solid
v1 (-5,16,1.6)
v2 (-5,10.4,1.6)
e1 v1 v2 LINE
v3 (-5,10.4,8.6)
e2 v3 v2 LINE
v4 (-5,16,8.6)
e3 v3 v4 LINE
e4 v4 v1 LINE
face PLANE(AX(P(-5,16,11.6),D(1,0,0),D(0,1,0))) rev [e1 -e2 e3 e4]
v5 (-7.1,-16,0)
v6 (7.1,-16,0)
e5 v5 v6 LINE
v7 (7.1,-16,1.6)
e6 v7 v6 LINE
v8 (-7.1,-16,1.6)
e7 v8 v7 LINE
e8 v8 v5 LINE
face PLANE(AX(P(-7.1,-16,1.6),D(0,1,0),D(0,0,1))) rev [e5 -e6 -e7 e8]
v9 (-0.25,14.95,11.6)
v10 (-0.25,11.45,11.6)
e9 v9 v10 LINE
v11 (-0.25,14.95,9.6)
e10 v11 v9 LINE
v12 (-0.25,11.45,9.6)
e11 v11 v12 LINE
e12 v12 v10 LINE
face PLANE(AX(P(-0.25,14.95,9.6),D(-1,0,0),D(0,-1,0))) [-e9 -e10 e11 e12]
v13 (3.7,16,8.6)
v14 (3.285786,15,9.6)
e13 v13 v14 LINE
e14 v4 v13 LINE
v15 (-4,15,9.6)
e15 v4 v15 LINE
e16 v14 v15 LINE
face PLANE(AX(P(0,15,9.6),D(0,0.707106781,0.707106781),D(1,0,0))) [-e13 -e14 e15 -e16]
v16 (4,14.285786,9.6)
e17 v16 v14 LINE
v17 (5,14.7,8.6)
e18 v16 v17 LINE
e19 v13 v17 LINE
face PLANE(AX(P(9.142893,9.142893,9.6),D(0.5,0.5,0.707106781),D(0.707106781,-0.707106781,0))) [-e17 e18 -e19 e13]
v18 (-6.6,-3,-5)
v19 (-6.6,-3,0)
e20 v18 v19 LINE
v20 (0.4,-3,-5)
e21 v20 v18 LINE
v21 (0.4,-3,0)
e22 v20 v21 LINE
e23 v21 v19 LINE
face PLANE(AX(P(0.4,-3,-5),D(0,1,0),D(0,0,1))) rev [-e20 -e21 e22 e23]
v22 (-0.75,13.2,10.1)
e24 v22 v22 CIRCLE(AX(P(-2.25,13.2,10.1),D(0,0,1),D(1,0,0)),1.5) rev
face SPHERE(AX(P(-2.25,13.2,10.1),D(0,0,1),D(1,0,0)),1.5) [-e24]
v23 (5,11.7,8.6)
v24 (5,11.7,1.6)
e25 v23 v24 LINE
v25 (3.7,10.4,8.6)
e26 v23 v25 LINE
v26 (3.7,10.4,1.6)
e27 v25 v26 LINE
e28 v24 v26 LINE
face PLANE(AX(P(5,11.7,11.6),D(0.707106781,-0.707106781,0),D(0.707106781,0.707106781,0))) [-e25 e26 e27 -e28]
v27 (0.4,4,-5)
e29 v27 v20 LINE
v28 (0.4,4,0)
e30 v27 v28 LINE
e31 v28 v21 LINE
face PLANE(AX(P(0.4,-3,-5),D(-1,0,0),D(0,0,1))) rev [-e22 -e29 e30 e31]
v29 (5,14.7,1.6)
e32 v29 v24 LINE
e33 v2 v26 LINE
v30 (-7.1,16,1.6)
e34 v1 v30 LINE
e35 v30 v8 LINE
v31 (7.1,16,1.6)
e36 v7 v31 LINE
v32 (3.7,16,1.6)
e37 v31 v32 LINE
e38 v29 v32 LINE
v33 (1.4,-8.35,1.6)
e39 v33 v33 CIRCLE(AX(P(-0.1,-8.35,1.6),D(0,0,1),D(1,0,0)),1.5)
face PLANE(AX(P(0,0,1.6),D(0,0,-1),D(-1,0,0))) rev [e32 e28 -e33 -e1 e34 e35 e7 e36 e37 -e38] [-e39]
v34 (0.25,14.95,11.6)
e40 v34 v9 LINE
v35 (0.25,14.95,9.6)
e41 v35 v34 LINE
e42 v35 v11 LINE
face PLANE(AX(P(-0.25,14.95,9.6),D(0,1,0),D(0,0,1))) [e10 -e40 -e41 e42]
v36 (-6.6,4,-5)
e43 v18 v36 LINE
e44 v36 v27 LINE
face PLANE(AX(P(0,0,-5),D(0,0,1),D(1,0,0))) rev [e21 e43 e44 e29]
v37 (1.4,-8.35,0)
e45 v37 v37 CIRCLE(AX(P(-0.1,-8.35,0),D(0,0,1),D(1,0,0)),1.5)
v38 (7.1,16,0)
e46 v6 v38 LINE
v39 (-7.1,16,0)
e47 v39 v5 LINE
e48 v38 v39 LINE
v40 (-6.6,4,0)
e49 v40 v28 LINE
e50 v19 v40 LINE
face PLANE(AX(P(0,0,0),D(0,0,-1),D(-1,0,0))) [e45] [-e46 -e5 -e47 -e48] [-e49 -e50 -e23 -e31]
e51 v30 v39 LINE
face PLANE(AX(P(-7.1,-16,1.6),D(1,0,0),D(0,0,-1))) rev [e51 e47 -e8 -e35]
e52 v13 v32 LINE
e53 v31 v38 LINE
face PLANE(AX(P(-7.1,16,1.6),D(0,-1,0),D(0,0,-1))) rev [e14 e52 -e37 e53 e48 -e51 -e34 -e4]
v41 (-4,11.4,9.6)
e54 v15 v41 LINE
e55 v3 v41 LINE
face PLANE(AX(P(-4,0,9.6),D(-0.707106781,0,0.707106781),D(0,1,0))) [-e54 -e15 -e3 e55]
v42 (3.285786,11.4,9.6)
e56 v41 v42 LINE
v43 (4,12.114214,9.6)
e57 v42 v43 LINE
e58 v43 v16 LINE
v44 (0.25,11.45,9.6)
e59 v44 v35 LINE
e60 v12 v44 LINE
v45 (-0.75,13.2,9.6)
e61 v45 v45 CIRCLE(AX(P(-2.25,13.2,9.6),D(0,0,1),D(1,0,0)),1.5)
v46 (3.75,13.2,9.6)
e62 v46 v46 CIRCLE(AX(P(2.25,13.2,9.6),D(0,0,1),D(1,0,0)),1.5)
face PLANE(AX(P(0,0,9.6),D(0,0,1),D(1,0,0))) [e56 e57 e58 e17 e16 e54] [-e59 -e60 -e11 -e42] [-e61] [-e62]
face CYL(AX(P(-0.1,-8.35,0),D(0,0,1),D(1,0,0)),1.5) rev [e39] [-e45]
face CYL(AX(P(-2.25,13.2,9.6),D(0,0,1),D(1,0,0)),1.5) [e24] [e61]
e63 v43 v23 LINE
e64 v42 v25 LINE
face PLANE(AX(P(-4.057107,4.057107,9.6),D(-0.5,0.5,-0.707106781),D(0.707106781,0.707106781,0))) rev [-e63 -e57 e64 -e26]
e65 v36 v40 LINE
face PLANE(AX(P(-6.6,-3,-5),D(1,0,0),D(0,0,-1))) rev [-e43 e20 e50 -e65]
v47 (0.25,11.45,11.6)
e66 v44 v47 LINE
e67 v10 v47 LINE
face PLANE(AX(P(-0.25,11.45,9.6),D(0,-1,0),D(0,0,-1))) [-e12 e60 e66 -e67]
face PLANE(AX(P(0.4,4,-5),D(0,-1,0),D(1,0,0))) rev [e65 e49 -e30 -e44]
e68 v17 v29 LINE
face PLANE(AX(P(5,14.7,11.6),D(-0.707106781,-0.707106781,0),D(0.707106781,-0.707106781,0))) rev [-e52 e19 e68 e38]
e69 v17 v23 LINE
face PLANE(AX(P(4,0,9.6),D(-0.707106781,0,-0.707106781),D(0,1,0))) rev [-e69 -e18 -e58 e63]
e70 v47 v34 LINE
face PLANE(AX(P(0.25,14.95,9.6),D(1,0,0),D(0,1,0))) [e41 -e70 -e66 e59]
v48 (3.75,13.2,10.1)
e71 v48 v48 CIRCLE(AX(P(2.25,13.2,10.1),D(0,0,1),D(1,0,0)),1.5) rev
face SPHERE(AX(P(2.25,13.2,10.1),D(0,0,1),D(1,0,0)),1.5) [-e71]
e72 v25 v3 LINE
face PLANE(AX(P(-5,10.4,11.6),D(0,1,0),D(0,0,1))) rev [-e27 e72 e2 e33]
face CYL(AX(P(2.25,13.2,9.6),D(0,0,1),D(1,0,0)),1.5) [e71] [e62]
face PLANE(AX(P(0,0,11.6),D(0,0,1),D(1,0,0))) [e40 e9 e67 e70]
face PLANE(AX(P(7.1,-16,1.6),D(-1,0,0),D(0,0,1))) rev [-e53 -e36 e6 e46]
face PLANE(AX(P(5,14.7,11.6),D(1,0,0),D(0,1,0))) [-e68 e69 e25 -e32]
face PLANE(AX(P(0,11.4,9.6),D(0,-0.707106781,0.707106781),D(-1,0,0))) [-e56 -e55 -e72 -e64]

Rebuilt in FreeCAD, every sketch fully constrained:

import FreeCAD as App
import Part
import Sketcher
Q = App.Units.Quantity


def edges_at(feature, points):
    """Names of the edges that pass closest to the given points."""
    edges = feature.Shape.Edges
    near = lambda p: min(range(len(edges)), key=lambda i: edges[i].distToShape(Part.Vertex(*p))[0])
    return sorted({f"Edge{near(p) + 1}" for p in points})

doc = App.newDocument("Part")
body = doc.addObject("PartDesign::Body", "Body")

# Sketch on XY plane
sketch1 = body.newObject("Sketcher::SketchObject", "Sketch")
sketch1.AttachmentSupport = (doc.getObject("XY_Plane"), [""])
sketch1.MapMode = "FlatFace"
sketch1.addGeometry([
    Part.LineSegment(App.Vector(-7, 16, 0), App.Vector(-7, -16, 0)),
    Part.LineSegment(App.Vector(-7, -16, 0), App.Vector(7, -16, 0)),
    Part.LineSegment(App.Vector(7, -16, 0), App.Vector(7, 16, 0)),
    Part.LineSegment(App.Vector(7, 16, 0), App.Vector(-7, 16, 0)),
], False)
sketch1.addConstraint([
    Sketcher.Constraint("Coincident", 0, 2, 1, 1),
    Sketcher.Constraint("Coincident", 1, 2, 2, 1),
    Sketcher.Constraint("Coincident", 2, 2, 3, 1),
    Sketcher.Constraint("Coincident", 3, 2, 0, 1),
    Sketcher.Constraint("Vertical", 0),
    Sketcher.Constraint("Horizontal", 1),
    Sketcher.Constraint("Vertical", 2),
    Sketcher.Constraint("Horizontal", 3),
    Sketcher.Constraint("Symmetric", 0, 2, 2, 2, -1, 1),
    Sketcher.Constraint("DistanceY", 0, 2, 0, 1, Q("32 mm")),
    Sketcher.Constraint("DistanceX", 1, 1, 1, 2, Q("14.2 mm")),
])
pad1 = body.newObject("PartDesign::Pad", "Pad")
pad1.Profile = sketch1
pad1.Length = 1.6

# Sketch on XY plane
sketch2 = body.newObject("Sketcher::SketchObject", "Sketch001")
sketch2.AttachmentSupport = (doc.getObject("XY_Plane"), [""])
sketch2.MapMode = "FlatFace"
sketch2.AttachmentOffset = App.Placement(App.Vector(0, 0, 1.6), App.Rotation())
sketch2.addGeometry(Part.Circle(App.Vector(-0.1, -8.3, 0), App.Vector(0, 0, 1), 1.5), False)
sketch2.addConstraint([
    Sketcher.Constraint("Diameter", 0, Q("3 mm")),
    Sketcher.Constraint("DistanceX", 0, 3, -1, 1, Q("0.1 mm")),
    Sketcher.Constraint("DistanceY", 0, 3, -1, 1, Q("8.35 mm")),
])
pocket1 = body.newObject("PartDesign::Pocket", "Pocket")
pocket1.Profile = sketch2
pocket1.Type = "ThroughAll"

# Sketch on XY plane
sketch3 = body.newObject("Sketcher::SketchObject", "Sketch002")
sketch3.AttachmentSupport = (doc.getObject("XY_Plane"), [""])
sketch3.MapMode = "FlatFace"
sketch3.AttachmentOffset = App.Placement(App.Vector(0, 0, 1.6), App.Rotation())
sketch3.addGeometry([
    Part.LineSegment(App.Vector(3.7, 16, 0), App.Vector(-5, 16, 0)),  # 0
    Part.LineSegment(App.Vector(-5, 16, 0), App.Vector(-5, 10.4, 0)),  # 1
    Part.LineSegment(App.Vector(-5, 10.4, 0), App.Vector(3.7, 10.4, 0)),  # 2
    Part.LineSegment(App.Vector(3.7, 10.4, 0), App.Vector(5, 11.7, 0)),  # 3
    Part.LineSegment(App.Vector(5, 11.7, 0), App.Vector(5, 14.7, 0)),  # 4
    Part.LineSegment(App.Vector(5, 14.7, 0), App.Vector(3.7, 16, 0)),  # 5
], False)
sketch3.addConstraint([
    Sketcher.Constraint("Coincident", 0, 2, 1, 1),
    Sketcher.Constraint("Coincident", 1, 2, 2, 1),
    Sketcher.Constraint("Coincident", 2, 2, 3, 1),
    Sketcher.Constraint("Coincident", 3, 2, 4, 1),
    Sketcher.Constraint("Coincident", 4, 2, 5, 1),
    Sketcher.Constraint("Coincident", 5, 2, 0, 1),
    Sketcher.Constraint("Horizontal", 0),
    Sketcher.Constraint("Vertical", 1),
    Sketcher.Constraint("Horizontal", 2),
    Sketcher.Constraint("Vertical", 4),
    Sketcher.Constraint("Perpendicular", 3, 5),
    Sketcher.Constraint("Vertical", 2, 2, 5, 2),
    Sketcher.Constraint("Equal", 3, 5),
    Sketcher.Constraint("DistanceY", 4, 1, 4, 2, Q("3 mm")),
    Sketcher.Constraint("DistanceX", 0, 2, 0, 1, Q("8.7 mm")),
    Sketcher.Constraint("DistanceY", 1, 2, 1, 1, Q("5.6 mm")),
    Sketcher.Constraint("DistanceX", 0, 2, -1, 1, Q("5 mm")),
    Sketcher.Constraint("DistanceY", -1, 1, 0, 2, Q("16 mm")),
])
pad2 = body.newObject("PartDesign::Pad", "Pad001")
pad2.Profile = sketch3
pad2.Length = 10

# Sketch on XY plane
sketch4 = body.newObject("Sketcher::SketchObject", "Sketch003")
sketch4.AttachmentSupport = (doc.getObject("XY_Plane"), [""])
sketch4.MapMode = "FlatFace"
sketch4.AttachmentOffset = App.Placement(App.Vector(0, 0, 11.6), App.Rotation())
sketch4.addGeometry([
    Part.LineSegment(App.Vector(-5, 10.4, 0), App.Vector(3.7, 10.4, 0)),  # 0
    Part.LineSegment(App.Vector(3.7, 10.4, 0), App.Vector(5, 11.7, 0)),  # 1
    Part.LineSegment(App.Vector(5, 11.7, 0), App.Vector(5, 14.7, 0)),  # 2
    Part.LineSegment(App.Vector(5, 14.7, 0), App.Vector(3.7, 16, 0)),  # 3
    Part.LineSegment(App.Vector(3.7, 16, 0), App.Vector(-5, 16, 0)),  # 4
    Part.LineSegment(App.Vector(-5, 16, 0), App.Vector(-5, 10.4, 0)),  # 5
    Part.Circle(App.Vector(-2.2, 13.2, 0), App.Vector(0, 0, 1), 1.5),  # 6
    Part.LineSegment(App.Vector(0.2, 11.4, 0), App.Vector(-0.2, 11.4, 0)),  # 7
    Part.LineSegment(App.Vector(-0.2, 11.4, 0), App.Vector(-0.2, 14.9, 0)),  # 8
    Part.LineSegment(App.Vector(-0.2, 14.9, 0), App.Vector(0.2, 14.9, 0)),  # 9
    Part.LineSegment(App.Vector(0.2, 14.9, 0), App.Vector(0.2, 11.4, 0)),  # 10
    Part.Circle(App.Vector(2.2, 13.2, 0), App.Vector(0, 0, 1), 1.5),  # 11
], False)
sketch4.addConstraint([
    Sketcher.Constraint("Coincident", 0, 2, 1, 1),
    Sketcher.Constraint("Coincident", 1, 2, 2, 1),
    Sketcher.Constraint("Coincident", 2, 2, 3, 1),
    Sketcher.Constraint("Coincident", 3, 2, 4, 1),
    Sketcher.Constraint("Coincident", 4, 2, 5, 1),
    Sketcher.Constraint("Coincident", 5, 2, 0, 1),
    Sketcher.Constraint("Coincident", 7, 2, 8, 1),
    Sketcher.Constraint("Coincident", 8, 2, 9, 1),
    Sketcher.Constraint("Coincident", 9, 2, 10, 1),
    Sketcher.Constraint("Coincident", 10, 2, 7, 1),
    Sketcher.Constraint("Horizontal", 0),
    Sketcher.Constraint("Vertical", 2),
    Sketcher.Constraint("Horizontal", 4),
    Sketcher.Constraint("Vertical", 5),
    Sketcher.Constraint("Horizontal", 7),
    Sketcher.Constraint("Vertical", 8),
    Sketcher.Constraint("Horizontal", 9),
    Sketcher.Constraint("Vertical", 10),
    Sketcher.Constraint("Equal", 6, 11),
    Sketcher.Constraint("Symmetric", 6, 3, 11, 3, -2),
    Sketcher.Constraint("Perpendicular", 1, 3),
    Sketcher.Constraint("Vertical", 0, 2, 3, 2),
    Sketcher.Constraint("Equal", 1, 3),
    Sketcher.Constraint("Diameter", 6, Q("3 mm")),
    Sketcher.Constraint("DistanceY", 2, 1, 2, 2, Q("3 mm")),
    Sketcher.Constraint("DistanceX", 0, 1, 0, 2, Q("8.7 mm")),
    Sketcher.Constraint("DistanceX", 7, 2, 7, 1, Q("0.5 mm")),
    Sketcher.Constraint("DistanceY", 5, 2, 5, 1, Q("5.6 mm")),
    Sketcher.Constraint("DistanceY", 8, 1, 8, 2, Q("3.5 mm")),
    Sketcher.Constraint("DistanceX", -1, 1, 1, 2, Q("5 mm")),
    Sketcher.Constraint("DistanceY", -1, 1, 3, 2, Q("16 mm")),
    Sketcher.Constraint("DistanceX", 6, 3, 7, 2, Q("2 mm")),
    Sketcher.Constraint("DistanceX", 9, 2, 11, 3, Q("2 mm")),
    Sketcher.Constraint("DistanceY", -1, 1, 6, 3, Q("13.2 mm")),
    Sketcher.Constraint("DistanceY", -1, 1, 7, 2, Q("11.45 mm")),
])
pocket2 = body.newObject("PartDesign::Pocket", "Pocket001")
pocket2.Profile = sketch4
pocket2.Length = 2
doc.recompute()

chamfer = body.newObject("PartDesign::Chamfer", "Chamfer")
chamfer.Base = (pocket2, edges_at(pocket2, [
    (4.35, 15.35, 9.6),
    (5, 13.2, 9.6),
    (4.35, 11.05, 9.6),
    (-0.65, 10.4, 9.6),
    (-5, 13.2, 9.6),
    (-0.65, 16, 9.6),
]))
chamfer.Size = 1
doc.recompute()

fillet = body.newObject("PartDesign::Fillet", "Fillet")
fillet.Base = (chamfer, edges_at(chamfer, [(-3.75, 13.2, 11.6), (0.75, 13.2, 11.6)]))
fillet.Radius = 1.5

# Sketch on XY plane
sketch5 = body.newObject("Sketcher::SketchObject", "Sketch004")
sketch5.AttachmentSupport = (doc.getObject("XY_Plane"), [""])
sketch5.MapMode = "FlatFace"
sketch5.addGeometry([
    Part.LineSegment(App.Vector(0, 4, 0), App.Vector(0, -3, 0)),
    Part.LineSegment(App.Vector(0, -3, 0), App.Vector(-7, -3, 0)),
    Part.LineSegment(App.Vector(-7, -3, 0), App.Vector(-7, 4, 0)),
    Part.LineSegment(App.Vector(-7, 4, 0), App.Vector(0, 4, 0)),
], False)
sketch5.addConstraint([
    Sketcher.Constraint("Coincident", 0, 2, 1, 1),
    Sketcher.Constraint("Coincident", 1, 2, 2, 1),
    Sketcher.Constraint("Coincident", 2, 2, 3, 1),
    Sketcher.Constraint("Coincident", 3, 2, 0, 1),
    Sketcher.Constraint("Vertical", 0),
    Sketcher.Constraint("Horizontal", 1),
    Sketcher.Constraint("Vertical", 2),
    Sketcher.Constraint("Horizontal", 3),
    Sketcher.Constraint("Equal", 3, 0),
    Sketcher.Constraint("DistanceX", 1, 2, 1, 1, Q("7 mm")),
    Sketcher.Constraint("DistanceY", 0, 2, -1, 1, Q("3 mm")),
    Sketcher.Constraint("DistanceX", -1, 1, 0, 2, Q("0.4 mm")),
])
pad3 = body.newObject("PartDesign::Pad", "Pad002")
pad3.Profile = sketch5
pad3.Length = 5
pad3.Reversed = True

doc.recompute()
